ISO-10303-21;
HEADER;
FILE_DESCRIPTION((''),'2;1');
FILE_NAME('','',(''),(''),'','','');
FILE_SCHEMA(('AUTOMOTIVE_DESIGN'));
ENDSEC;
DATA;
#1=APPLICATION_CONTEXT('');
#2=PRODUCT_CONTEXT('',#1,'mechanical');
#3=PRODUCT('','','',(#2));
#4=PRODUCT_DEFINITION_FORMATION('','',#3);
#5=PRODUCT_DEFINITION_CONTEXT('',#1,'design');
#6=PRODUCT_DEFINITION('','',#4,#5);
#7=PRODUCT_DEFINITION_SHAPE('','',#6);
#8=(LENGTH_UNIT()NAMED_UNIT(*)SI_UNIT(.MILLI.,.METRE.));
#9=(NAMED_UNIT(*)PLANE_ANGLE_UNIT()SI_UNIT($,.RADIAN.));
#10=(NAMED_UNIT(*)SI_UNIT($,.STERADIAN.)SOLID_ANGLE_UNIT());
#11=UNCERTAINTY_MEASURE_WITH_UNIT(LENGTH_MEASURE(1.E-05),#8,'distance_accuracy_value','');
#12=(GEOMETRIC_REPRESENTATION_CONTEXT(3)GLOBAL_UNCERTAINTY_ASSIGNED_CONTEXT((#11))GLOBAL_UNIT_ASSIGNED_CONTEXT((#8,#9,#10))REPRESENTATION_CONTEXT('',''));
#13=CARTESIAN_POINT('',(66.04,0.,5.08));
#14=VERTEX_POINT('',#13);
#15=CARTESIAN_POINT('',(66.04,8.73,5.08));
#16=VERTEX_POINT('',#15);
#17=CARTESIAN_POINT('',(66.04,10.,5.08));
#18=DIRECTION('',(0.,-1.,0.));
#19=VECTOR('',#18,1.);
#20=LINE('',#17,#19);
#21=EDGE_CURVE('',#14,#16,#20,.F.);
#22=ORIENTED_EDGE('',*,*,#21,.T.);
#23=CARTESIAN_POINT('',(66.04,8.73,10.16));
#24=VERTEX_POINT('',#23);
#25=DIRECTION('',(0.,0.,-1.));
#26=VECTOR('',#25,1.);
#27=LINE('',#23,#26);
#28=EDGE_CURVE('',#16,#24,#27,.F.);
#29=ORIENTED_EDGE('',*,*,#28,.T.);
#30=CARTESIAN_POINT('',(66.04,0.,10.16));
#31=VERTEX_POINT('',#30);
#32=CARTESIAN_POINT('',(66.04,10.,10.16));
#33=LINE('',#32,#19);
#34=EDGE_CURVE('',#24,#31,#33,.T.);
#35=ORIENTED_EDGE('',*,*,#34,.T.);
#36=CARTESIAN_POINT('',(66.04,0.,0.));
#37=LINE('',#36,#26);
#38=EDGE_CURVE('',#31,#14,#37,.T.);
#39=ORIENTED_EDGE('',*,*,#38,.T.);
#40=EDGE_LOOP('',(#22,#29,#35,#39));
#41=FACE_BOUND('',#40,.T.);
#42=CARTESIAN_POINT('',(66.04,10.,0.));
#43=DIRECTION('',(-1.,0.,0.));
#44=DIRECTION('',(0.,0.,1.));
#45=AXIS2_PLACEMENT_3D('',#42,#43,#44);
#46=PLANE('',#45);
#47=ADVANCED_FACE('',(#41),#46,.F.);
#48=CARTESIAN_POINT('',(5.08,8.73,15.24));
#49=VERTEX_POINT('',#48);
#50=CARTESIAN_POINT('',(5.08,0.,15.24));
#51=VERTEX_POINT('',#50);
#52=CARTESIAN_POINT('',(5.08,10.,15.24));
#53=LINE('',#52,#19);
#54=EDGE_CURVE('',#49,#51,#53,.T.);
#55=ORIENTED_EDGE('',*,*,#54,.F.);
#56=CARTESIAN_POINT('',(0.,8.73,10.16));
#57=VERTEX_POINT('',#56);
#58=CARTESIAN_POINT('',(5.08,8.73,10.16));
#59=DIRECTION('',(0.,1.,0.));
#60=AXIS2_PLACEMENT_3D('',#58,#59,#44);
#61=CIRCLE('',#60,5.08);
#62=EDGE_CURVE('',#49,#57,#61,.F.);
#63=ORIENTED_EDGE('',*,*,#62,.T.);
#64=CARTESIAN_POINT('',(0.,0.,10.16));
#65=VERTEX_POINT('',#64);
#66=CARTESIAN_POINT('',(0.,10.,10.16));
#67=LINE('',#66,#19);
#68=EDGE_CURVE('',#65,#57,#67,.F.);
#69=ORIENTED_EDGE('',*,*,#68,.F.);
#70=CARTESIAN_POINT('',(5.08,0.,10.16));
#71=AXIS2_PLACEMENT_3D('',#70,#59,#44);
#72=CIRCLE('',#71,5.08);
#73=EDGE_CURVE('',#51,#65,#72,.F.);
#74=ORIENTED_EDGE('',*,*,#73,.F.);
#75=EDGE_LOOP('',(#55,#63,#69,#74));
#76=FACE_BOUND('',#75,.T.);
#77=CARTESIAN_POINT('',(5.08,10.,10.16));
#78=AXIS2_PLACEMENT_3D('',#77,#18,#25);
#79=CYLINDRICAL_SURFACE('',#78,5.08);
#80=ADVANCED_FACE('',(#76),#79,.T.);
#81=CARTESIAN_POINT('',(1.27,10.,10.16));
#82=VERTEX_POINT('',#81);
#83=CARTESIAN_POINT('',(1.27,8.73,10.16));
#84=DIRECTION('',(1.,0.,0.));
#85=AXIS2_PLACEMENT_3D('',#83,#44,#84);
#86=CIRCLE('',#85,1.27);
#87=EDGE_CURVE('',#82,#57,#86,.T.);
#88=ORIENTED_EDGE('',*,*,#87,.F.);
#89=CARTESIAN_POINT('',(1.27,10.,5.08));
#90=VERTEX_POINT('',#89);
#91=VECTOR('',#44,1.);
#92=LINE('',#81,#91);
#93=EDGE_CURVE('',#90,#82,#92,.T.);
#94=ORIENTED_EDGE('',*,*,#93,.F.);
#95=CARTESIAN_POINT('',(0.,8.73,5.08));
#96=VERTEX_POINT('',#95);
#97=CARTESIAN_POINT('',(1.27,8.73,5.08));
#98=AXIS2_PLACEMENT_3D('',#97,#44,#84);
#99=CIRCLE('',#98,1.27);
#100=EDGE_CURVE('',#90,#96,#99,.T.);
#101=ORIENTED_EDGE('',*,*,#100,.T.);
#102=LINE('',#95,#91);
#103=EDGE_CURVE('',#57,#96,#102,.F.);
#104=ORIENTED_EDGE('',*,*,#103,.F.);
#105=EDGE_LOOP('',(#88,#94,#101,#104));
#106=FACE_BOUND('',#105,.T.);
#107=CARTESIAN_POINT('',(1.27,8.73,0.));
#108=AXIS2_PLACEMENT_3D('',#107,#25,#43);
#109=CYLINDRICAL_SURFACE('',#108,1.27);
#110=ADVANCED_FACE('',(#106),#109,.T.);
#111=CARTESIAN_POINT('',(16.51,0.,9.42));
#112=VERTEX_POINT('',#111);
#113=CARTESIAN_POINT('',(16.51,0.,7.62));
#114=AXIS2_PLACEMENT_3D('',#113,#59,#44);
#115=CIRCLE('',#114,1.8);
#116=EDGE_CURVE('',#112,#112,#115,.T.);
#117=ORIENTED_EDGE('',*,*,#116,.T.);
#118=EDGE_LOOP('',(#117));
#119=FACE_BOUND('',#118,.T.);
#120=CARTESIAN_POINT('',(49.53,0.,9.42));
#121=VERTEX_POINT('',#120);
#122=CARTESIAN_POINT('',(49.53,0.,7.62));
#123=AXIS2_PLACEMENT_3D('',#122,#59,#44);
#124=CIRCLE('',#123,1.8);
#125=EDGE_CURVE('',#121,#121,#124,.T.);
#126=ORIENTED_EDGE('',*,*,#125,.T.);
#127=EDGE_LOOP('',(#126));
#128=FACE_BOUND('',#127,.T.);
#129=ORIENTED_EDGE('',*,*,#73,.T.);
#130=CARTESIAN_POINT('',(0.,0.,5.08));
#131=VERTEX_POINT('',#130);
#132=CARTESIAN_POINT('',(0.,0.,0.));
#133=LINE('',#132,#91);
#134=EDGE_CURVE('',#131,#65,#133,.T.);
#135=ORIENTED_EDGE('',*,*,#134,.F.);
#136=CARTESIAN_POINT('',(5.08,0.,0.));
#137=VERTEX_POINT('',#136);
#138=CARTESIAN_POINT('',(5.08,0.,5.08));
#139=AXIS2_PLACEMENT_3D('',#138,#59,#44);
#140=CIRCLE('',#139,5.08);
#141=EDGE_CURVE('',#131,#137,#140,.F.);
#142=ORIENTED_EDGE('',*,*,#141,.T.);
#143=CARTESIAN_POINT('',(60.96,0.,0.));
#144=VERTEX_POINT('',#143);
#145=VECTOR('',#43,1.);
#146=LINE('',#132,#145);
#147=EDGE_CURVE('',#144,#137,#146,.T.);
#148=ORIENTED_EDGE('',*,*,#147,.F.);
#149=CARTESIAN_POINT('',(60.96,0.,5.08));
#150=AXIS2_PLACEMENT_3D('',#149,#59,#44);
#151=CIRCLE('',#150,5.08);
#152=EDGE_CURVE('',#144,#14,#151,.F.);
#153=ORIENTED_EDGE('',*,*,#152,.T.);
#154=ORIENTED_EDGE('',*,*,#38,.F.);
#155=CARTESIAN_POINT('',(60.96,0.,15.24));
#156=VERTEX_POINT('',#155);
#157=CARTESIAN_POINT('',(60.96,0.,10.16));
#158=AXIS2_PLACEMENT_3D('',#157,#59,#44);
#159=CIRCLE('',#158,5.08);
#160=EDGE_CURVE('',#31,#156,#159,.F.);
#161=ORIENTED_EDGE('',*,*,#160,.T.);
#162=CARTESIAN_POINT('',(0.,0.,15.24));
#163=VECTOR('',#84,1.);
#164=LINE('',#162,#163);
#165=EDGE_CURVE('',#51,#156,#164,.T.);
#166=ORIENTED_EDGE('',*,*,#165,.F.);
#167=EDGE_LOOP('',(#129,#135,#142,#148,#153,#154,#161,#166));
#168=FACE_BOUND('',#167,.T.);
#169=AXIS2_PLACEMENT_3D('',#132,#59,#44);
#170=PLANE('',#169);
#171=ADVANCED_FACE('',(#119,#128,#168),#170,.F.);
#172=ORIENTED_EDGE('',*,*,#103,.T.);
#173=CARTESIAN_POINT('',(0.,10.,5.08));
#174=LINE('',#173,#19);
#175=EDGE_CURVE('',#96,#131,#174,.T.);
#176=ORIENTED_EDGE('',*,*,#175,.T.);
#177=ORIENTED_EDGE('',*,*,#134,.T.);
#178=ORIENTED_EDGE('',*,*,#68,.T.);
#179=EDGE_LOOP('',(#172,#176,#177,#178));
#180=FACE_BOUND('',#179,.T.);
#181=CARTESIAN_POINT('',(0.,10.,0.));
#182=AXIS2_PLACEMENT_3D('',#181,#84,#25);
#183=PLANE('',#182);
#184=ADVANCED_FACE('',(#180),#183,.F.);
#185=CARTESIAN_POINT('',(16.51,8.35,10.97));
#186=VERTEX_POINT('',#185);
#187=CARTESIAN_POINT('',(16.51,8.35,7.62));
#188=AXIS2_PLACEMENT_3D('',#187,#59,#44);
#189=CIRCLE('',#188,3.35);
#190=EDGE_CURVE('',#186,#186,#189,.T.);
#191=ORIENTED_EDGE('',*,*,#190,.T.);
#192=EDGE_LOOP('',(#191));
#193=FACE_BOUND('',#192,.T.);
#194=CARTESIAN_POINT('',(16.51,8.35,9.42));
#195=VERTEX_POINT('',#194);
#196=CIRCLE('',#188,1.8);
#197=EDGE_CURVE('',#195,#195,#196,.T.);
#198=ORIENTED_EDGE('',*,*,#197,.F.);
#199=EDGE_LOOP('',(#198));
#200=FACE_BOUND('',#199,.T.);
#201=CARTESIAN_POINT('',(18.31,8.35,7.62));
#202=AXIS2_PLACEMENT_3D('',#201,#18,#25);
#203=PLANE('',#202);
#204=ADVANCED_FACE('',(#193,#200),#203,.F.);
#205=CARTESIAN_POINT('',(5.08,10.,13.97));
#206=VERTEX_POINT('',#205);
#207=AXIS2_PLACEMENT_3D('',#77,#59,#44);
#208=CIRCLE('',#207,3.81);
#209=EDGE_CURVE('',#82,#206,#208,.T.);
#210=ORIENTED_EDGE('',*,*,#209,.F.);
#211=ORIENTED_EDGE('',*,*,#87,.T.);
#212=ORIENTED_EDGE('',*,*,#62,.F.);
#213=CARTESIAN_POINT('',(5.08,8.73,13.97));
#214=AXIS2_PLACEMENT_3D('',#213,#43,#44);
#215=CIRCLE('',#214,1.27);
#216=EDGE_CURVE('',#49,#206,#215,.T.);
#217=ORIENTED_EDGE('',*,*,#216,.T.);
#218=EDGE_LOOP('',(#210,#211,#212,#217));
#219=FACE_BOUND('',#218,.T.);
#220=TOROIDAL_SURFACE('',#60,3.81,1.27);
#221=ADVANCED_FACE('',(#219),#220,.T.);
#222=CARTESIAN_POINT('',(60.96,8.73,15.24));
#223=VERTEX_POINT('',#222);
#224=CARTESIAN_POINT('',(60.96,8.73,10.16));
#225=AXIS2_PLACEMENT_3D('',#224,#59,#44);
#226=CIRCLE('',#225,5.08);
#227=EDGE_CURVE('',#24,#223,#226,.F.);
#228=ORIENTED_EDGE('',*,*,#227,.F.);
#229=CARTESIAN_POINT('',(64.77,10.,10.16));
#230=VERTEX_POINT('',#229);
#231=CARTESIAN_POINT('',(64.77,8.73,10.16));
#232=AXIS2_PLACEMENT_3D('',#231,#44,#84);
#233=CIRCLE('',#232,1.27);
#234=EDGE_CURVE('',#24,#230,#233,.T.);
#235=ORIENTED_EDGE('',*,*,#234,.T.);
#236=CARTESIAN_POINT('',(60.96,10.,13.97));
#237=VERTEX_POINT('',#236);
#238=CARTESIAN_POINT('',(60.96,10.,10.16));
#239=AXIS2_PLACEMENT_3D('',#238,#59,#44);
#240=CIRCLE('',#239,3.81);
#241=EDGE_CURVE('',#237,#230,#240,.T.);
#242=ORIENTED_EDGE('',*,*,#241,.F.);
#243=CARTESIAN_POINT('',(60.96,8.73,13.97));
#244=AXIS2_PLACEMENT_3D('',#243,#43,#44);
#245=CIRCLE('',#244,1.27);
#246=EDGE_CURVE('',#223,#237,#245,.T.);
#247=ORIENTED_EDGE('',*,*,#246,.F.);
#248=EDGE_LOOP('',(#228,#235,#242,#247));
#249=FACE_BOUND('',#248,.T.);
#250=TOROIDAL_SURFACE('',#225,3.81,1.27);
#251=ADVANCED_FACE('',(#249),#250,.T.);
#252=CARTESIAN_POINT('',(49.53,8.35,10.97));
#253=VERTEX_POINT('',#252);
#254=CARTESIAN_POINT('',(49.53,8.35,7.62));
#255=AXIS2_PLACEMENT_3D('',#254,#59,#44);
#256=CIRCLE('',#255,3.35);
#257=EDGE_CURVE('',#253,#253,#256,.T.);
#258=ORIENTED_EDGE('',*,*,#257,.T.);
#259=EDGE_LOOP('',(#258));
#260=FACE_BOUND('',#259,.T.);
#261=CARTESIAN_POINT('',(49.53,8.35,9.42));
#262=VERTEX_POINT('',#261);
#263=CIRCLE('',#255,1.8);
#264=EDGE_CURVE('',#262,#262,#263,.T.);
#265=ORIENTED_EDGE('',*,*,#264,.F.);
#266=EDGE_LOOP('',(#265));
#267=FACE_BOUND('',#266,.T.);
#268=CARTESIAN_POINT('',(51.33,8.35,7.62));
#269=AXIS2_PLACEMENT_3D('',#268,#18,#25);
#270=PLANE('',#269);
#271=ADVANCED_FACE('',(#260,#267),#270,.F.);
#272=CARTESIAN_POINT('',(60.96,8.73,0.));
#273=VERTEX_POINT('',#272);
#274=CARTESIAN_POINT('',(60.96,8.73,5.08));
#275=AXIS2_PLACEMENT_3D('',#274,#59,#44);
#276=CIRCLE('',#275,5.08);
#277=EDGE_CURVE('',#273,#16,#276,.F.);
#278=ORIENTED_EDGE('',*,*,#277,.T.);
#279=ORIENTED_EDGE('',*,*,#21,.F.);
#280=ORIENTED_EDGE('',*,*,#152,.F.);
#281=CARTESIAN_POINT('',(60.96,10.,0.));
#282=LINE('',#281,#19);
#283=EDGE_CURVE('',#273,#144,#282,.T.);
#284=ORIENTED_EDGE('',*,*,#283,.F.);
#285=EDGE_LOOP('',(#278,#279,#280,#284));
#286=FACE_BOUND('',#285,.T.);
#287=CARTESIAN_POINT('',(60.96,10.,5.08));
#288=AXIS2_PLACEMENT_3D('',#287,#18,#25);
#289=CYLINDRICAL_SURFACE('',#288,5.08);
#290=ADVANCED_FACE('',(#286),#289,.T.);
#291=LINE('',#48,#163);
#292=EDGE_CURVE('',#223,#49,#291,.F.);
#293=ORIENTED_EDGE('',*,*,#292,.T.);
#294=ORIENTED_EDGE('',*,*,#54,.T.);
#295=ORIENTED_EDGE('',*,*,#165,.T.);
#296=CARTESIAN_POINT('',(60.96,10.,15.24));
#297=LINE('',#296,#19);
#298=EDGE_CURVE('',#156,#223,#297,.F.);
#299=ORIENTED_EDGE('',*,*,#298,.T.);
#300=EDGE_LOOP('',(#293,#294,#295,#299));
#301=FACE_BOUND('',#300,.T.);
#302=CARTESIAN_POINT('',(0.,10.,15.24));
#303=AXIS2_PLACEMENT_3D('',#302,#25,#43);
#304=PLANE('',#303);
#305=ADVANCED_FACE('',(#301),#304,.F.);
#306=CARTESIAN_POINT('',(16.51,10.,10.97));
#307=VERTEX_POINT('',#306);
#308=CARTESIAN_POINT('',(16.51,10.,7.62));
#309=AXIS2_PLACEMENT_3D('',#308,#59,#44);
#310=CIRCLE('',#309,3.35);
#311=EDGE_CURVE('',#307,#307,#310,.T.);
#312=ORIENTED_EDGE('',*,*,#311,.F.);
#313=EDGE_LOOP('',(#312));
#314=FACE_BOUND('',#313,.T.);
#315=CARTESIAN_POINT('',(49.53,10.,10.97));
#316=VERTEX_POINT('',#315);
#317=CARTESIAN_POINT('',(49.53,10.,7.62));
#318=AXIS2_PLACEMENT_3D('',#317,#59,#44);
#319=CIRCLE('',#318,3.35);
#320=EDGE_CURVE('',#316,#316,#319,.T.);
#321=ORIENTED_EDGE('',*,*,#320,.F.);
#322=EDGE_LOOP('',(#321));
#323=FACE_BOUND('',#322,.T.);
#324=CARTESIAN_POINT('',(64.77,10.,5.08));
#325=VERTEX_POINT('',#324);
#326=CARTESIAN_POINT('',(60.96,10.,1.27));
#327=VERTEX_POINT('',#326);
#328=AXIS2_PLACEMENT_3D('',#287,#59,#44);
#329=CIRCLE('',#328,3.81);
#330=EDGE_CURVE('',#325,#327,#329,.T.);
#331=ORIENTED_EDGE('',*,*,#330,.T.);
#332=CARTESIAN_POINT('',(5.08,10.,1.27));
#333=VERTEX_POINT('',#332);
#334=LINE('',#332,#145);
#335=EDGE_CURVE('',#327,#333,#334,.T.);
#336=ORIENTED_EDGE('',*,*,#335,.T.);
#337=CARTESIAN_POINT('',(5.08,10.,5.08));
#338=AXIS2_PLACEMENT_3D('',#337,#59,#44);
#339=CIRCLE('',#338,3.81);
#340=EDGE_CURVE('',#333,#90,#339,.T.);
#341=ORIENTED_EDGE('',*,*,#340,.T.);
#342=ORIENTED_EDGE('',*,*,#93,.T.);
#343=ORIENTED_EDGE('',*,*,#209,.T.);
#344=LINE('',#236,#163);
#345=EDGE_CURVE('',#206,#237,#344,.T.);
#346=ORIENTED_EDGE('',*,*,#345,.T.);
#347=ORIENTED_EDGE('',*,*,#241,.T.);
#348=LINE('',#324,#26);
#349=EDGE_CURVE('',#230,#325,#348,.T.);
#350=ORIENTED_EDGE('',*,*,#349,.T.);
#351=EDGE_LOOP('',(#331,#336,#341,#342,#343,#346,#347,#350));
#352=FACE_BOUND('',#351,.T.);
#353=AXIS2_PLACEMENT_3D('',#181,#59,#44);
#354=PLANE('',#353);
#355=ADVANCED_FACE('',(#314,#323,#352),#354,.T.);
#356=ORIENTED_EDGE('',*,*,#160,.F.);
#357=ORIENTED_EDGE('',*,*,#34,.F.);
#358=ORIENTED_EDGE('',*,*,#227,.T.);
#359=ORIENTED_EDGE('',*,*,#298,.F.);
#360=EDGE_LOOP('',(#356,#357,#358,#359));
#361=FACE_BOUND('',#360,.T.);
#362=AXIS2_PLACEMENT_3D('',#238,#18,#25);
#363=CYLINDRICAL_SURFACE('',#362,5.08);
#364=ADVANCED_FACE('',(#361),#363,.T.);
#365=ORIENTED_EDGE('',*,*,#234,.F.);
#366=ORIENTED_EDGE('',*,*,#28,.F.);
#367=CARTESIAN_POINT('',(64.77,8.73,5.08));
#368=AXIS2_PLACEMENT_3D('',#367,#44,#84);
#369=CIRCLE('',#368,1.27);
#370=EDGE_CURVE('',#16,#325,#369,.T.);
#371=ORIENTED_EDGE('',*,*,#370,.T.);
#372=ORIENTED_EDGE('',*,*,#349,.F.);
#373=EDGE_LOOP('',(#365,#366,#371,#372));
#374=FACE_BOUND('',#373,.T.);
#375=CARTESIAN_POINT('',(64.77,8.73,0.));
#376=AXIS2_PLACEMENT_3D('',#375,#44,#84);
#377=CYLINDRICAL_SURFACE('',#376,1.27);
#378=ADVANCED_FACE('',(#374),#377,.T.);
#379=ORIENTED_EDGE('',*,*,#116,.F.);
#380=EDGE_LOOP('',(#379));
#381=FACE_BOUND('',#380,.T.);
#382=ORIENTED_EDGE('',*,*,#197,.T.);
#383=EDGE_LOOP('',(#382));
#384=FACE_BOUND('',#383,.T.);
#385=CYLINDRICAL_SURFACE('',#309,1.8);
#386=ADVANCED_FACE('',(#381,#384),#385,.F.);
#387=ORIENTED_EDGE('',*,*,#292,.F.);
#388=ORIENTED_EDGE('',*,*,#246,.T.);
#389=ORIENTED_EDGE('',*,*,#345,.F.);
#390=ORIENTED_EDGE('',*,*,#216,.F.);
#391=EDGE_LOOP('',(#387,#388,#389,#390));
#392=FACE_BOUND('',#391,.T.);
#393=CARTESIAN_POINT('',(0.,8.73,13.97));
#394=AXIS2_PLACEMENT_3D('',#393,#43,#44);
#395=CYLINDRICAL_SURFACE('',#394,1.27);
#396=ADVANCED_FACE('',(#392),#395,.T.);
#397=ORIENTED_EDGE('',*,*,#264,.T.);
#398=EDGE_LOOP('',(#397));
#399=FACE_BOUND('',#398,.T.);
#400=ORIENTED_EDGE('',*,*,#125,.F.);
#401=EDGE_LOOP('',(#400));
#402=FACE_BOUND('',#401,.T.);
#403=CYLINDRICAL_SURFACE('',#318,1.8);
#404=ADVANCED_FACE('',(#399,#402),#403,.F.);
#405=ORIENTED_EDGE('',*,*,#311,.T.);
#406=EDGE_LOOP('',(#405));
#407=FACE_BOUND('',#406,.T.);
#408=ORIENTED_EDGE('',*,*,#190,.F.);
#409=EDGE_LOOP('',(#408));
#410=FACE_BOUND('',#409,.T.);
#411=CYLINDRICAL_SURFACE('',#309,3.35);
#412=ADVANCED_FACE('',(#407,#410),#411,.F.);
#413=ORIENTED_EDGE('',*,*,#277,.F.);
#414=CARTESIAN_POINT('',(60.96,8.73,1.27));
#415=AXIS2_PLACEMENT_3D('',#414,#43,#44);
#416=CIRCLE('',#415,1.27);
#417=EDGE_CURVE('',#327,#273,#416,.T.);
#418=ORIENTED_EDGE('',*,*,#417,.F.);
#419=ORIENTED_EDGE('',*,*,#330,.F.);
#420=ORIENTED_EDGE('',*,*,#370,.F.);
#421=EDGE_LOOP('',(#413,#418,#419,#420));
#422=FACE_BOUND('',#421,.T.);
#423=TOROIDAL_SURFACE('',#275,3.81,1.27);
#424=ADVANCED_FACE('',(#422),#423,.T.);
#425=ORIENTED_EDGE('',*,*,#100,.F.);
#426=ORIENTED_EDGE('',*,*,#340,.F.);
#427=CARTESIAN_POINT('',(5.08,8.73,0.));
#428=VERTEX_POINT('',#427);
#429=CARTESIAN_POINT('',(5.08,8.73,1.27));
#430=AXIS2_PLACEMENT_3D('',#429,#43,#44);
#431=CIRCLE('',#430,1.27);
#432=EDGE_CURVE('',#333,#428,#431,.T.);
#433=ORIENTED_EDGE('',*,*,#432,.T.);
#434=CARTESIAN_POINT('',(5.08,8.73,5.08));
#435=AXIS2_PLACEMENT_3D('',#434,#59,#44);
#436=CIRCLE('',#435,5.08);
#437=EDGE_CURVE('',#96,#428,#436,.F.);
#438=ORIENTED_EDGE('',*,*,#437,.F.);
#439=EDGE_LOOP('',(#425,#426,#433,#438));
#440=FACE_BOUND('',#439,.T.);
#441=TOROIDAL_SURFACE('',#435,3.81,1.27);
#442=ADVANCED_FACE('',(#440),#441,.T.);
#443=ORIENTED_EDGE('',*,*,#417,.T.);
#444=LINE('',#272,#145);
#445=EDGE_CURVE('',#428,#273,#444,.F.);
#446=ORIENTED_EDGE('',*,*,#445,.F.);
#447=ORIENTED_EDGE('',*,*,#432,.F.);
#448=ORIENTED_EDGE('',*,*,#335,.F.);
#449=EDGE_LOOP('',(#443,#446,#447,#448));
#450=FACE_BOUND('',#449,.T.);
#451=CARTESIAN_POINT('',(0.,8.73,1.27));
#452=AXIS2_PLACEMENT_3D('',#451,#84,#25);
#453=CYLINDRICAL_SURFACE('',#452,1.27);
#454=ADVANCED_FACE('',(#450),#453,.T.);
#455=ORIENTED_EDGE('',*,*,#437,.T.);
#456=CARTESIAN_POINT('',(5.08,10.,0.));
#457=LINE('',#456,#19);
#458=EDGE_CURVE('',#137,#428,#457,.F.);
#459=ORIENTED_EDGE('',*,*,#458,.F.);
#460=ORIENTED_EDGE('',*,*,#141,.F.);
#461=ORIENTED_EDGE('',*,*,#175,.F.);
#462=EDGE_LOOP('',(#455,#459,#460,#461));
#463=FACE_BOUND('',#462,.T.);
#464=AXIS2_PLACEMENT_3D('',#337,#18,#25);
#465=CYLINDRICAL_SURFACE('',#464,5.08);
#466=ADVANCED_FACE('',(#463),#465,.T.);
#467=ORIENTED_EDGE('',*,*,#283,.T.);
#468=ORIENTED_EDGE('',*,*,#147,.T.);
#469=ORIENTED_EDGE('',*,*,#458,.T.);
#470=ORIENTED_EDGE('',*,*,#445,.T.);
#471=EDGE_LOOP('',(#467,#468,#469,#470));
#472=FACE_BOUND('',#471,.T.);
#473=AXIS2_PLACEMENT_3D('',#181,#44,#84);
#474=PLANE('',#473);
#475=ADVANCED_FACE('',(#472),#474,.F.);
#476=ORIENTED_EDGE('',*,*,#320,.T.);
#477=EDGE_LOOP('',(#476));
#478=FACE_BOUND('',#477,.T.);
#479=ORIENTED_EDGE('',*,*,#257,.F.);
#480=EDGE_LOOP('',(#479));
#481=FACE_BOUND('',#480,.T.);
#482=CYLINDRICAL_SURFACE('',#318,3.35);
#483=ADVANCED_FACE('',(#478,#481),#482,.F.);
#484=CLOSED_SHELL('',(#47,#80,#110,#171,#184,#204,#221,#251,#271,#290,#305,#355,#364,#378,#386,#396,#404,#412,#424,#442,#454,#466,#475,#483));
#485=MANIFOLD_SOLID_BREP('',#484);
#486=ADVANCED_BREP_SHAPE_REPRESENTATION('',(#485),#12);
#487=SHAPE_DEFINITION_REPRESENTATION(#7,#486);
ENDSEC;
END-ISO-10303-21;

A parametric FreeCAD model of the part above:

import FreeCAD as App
import Part
import Sketcher
Q = App.Units.Quantity


def edges_at(feature, points):
    """Names of the edges that pass closest to the given points."""
    edges = feature.Shape.Edges
    near = lambda p: min(range(len(edges)), key=lambda i: edges[i].distToShape(Part.Vertex(*p))[0])
    return sorted({f"Edge{near(p) + 1}" for p in points})


def add_polygon(sketch, points):
    """Adds a closed chain of lines whose ends are joined by coincident constraints."""
    first, n = sketch.GeometryCount, len(points)
    for a, b in zip(points, points[1:] + points[:1]):
        sketch.addGeometry(Part.LineSegment(App.Vector(*a, 0), App.Vector(*b, 0)), False)
    for i in range(n):
        sketch.addConstraint(Sketcher.Constraint("Coincident", first + i, 2, first + (i + 1) % n, 1))

doc = App.newDocument("Part")
body = doc.addObject("PartDesign::Body", "Body")

sketch1 = doc.addObject("Sketcher::SketchObject", "Sketch")
body.addObject(sketch1)
sketch1.AttachmentSupport = (doc.XZ_Plane, [""])
sketch1.MapMode = "FlatFace"
add_polygon(sketch1, [(0, 0), (0, 15), (66, 15), (66, 0)])
sketch1.addConstraint([
    Sketcher.Constraint("Vertical", 0),
    Sketcher.Constraint("Horizontal", 1),
    Sketcher.Constraint("Vertical", 2),
    Sketcher.Constraint("Horizontal", 3),
    Sketcher.Constraint("Coincident", 3, 2, -1, 1),
    Sketcher.Constraint("DistanceX", 1, 1, 1, 2, Q("2.6 in")),
    Sketcher.Constraint("DistanceY", 0, 1, 0, 2, Q("0.6 in")),
])
pad1 = doc.addObject("PartDesign::Pad", "Pad")
body.addObject(pad1)
pad1.Profile = sketch1
pad1.Length = 10
pad1.Reversed = True

sketch2 = doc.addObject("Sketcher::SketchObject", "Sketch001")
body.addObject(sketch2)
sketch2.AttachmentSupport = (doc.XZ_Plane, [""])
sketch2.MapMode = "FlatFace"
sketch2.AttachmentOffset = App.Placement(App.Vector(0, 0, -10), App.Rotation())
sketch2.addGeometry([
    Part.Circle(App.Vector(16.5, 7.6, 0), App.Vector(0, 0, 1), 1.8),
    Part.Circle(App.Vector(49.5, 7.6, 0), App.Vector(0, 0, 1), 1.8),
], False)
sketch2.addConstraint([
    Sketcher.Constraint("Equal", 0, 1),
    Sketcher.Constraint("Horizontal", 0, 3, 1, 3),
    Sketcher.Constraint("DistanceY", -1, 1, 0, 3, Q("0.3 in")),
    Sketcher.Constraint("DistanceX", 0, 3, 1, 3, Q("1.3 in")),
    Sketcher.Constraint("Diameter", 0, 3.6),
    Sketcher.Constraint("DistanceX", -1, 1, 0, 3, Q("0.65 in")),
])
doc.recompute()
hole = doc.addObject("PartDesign::Hole", "Hole")
body.addObject(hole)
hole.Profile = sketch2
hole.ThreadType = "None"
hole.Diameter = 3.6
hole.DepthType = "ThroughAll"
hole.HoleCutType = "Counterbore"
hole.HoleCutDiameter = 6.7
hole.HoleCutDepth = 1.65
hole.Reversed = True
doc.recompute()

fillet = doc.addObject("PartDesign::Fillet", "Fillet")
body.addObject(fillet)
fillet.Base = (hole, edges_at(hole, [
    (0, 5, 0),
    (66.04, 5, 0),
    (66.04, 5, 15.24),
    (0, 5, 15.24),
]))
fillet.Radius = Q("0.2 in")
doc.recompute()

fillet2 = doc.addObject("PartDesign::Fillet", "Fillet001")
body.addObject(fillet2)
fillet2.Base = (fillet, edges_at(fillet, [
    (33.02, 10, 15.24),
    (0, 10, 7.62),
    (66.04, 10, 7.62),
    (33.02, 10, 0),
    (64.552, 10, 1.488),
    (64.552, 10, 13.752),
    (1.488, 10, 1.488),
    (1.488, 10, 13.752),
]))
fillet2.Radius = Q("0.05 in")

doc.recompute()
